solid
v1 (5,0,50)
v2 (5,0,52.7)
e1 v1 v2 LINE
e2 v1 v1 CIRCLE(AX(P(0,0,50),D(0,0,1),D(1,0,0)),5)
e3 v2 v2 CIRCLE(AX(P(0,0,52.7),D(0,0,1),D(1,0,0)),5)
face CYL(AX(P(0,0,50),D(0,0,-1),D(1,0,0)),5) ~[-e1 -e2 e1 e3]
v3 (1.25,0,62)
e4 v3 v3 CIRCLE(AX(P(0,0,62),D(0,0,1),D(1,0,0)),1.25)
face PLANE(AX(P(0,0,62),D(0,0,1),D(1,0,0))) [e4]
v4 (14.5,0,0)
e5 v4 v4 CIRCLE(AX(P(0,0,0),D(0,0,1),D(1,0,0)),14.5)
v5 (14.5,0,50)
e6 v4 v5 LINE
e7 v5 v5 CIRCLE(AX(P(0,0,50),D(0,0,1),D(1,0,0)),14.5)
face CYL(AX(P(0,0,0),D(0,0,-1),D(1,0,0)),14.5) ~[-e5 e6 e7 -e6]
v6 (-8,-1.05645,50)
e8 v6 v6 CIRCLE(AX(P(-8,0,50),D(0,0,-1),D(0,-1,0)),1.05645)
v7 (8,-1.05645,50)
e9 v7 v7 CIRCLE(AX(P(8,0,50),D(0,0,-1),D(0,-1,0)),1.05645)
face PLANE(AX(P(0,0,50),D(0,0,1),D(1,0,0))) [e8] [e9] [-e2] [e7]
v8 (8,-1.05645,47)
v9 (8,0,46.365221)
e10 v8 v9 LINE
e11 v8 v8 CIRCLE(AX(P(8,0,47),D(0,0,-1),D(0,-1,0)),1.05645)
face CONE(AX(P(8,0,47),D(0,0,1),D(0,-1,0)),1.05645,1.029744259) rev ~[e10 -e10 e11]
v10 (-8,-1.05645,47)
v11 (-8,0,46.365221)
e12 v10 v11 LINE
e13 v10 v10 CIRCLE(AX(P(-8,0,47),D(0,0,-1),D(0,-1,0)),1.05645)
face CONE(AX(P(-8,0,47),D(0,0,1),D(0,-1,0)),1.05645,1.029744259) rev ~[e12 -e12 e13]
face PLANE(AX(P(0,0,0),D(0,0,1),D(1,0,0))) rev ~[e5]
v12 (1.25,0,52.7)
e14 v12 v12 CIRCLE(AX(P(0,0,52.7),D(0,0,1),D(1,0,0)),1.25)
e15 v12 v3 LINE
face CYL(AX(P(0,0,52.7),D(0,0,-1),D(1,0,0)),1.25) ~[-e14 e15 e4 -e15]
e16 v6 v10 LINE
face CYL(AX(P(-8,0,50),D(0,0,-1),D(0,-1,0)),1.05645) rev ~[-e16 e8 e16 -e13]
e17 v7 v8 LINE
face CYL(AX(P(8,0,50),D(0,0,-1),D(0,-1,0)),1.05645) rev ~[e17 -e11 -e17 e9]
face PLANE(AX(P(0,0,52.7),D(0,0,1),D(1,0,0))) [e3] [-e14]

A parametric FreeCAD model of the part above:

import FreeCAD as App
import Part
import Sketcher
from FreeCAD import Vector

doc = App.newDocument("Part")
body = doc.addObject("PartDesign::Body", "Body")

sketch1 = body.newObject("Sketcher::SketchObject", "Sketch")
sketch1.AttachmentSupport = (doc.getObject("XY_Plane"), [""])
sketch1.MapMode = "FlatFace"
sketch1.addGeometry(Part.Circle(Vector(0, 0, 0), Vector(0, 0, 1), 14), False)
sketch1.addConstraint(Sketcher.Constraint("Coincident", 0, 3, -1, 1))
sketch1.addConstraint(Sketcher.Constraint("Diameter", 0, 29.0))
pad1 = body.newObject("PartDesign::Pad", "Pad")
pad1.Profile = sketch1
pad1.Length = 50

sketch2 = body.newObject("Sketcher::SketchObject", "Sketch001")
sketch2.AttachmentSupport = (doc.getObject("XY_Plane"), [""])
sketch2.MapMode = "FlatFace"
sketch2.AttachmentOffset = App.Placement(Vector(0, 0, 50), App.Rotation())
sketch2.addGeometry(Part.Circle(Vector(0, 0, 0), Vector(0, 0, 1), 5), False)
sketch2.addConstraint(Sketcher.Constraint("Coincident", 0, 3, -1, 1))
sketch2.addConstraint(Sketcher.Constraint("Diameter", 0, 10.0))
pad2 = body.newObject("PartDesign::Pad", "Pad001")
pad2.Profile = sketch2
pad2.Length = 2.7

sketch3 = body.newObject("Sketcher::SketchObject", "Sketch002")
sketch3.AttachmentSupport = (doc.getObject("XY_Plane"), [""])
sketch3.MapMode = "FlatFace"
sketch3.AttachmentOffset = App.Placement(Vector(0, 0, 52.7), App.Rotation())
sketch3.addGeometry(Part.Circle(Vector(0, 0, 0), Vector(0, 0, 1), 1.2), False)
sketch3.addConstraint(Sketcher.Constraint("Coincident", 0, 3, -1, 1))
sketch3.addConstraint(Sketcher.Constraint("Diameter", 0, 2.5))
pad3 = body.newObject("PartDesign::Pad", "Pad002")
pad3.Profile = sketch3
pad3.Length = 9.3

sketch4 = body.newObject("Sketcher::SketchObject", "Sketch003")
sketch4.AttachmentSupport = (doc.getObject("XY_Plane"), [""])
sketch4.MapMode = "FlatFace"
sketch4.AttachmentOffset = App.Placement(Vector(0, 0, 50), App.Rotation())
sketch4.addGeometry(Part.Circle(Vector(-8, 0, 0), Vector(0, 0, 1), 1.1), False)
sketch4.addGeometry(Part.Circle(Vector(8, 0, 0), Vector(0, 0, 1), 1.1), False)
sketch4.addConstraint(Sketcher.Constraint("Equal", 0, 1))
sketch4.addConstraint(Sketcher.Constraint("Symmetric", 0, 3, 1, 3, -1, 1))
sketch4.addConstraint(Sketcher.Constraint("PointOnObject", 0, 3, -1))
sketch4.addConstraint(Sketcher.Constraint("Diameter", 0, 2.113))
sketch4.addConstraint(Sketcher.Constraint("DistanceX", 0, 3, -1, 1, 8.0))
doc.recompute()
hole = body.newObject("PartDesign::Hole", "Hole")
hole.Profile = sketch4
hole.ThreadType = "None"
hole.Diameter = 2.1129
hole.DepthType = "Dimension"
hole.Depth = 3
hole.DrillPoint = "Angled"
hole.DrillPointAngle = 118

doc.recompute()
